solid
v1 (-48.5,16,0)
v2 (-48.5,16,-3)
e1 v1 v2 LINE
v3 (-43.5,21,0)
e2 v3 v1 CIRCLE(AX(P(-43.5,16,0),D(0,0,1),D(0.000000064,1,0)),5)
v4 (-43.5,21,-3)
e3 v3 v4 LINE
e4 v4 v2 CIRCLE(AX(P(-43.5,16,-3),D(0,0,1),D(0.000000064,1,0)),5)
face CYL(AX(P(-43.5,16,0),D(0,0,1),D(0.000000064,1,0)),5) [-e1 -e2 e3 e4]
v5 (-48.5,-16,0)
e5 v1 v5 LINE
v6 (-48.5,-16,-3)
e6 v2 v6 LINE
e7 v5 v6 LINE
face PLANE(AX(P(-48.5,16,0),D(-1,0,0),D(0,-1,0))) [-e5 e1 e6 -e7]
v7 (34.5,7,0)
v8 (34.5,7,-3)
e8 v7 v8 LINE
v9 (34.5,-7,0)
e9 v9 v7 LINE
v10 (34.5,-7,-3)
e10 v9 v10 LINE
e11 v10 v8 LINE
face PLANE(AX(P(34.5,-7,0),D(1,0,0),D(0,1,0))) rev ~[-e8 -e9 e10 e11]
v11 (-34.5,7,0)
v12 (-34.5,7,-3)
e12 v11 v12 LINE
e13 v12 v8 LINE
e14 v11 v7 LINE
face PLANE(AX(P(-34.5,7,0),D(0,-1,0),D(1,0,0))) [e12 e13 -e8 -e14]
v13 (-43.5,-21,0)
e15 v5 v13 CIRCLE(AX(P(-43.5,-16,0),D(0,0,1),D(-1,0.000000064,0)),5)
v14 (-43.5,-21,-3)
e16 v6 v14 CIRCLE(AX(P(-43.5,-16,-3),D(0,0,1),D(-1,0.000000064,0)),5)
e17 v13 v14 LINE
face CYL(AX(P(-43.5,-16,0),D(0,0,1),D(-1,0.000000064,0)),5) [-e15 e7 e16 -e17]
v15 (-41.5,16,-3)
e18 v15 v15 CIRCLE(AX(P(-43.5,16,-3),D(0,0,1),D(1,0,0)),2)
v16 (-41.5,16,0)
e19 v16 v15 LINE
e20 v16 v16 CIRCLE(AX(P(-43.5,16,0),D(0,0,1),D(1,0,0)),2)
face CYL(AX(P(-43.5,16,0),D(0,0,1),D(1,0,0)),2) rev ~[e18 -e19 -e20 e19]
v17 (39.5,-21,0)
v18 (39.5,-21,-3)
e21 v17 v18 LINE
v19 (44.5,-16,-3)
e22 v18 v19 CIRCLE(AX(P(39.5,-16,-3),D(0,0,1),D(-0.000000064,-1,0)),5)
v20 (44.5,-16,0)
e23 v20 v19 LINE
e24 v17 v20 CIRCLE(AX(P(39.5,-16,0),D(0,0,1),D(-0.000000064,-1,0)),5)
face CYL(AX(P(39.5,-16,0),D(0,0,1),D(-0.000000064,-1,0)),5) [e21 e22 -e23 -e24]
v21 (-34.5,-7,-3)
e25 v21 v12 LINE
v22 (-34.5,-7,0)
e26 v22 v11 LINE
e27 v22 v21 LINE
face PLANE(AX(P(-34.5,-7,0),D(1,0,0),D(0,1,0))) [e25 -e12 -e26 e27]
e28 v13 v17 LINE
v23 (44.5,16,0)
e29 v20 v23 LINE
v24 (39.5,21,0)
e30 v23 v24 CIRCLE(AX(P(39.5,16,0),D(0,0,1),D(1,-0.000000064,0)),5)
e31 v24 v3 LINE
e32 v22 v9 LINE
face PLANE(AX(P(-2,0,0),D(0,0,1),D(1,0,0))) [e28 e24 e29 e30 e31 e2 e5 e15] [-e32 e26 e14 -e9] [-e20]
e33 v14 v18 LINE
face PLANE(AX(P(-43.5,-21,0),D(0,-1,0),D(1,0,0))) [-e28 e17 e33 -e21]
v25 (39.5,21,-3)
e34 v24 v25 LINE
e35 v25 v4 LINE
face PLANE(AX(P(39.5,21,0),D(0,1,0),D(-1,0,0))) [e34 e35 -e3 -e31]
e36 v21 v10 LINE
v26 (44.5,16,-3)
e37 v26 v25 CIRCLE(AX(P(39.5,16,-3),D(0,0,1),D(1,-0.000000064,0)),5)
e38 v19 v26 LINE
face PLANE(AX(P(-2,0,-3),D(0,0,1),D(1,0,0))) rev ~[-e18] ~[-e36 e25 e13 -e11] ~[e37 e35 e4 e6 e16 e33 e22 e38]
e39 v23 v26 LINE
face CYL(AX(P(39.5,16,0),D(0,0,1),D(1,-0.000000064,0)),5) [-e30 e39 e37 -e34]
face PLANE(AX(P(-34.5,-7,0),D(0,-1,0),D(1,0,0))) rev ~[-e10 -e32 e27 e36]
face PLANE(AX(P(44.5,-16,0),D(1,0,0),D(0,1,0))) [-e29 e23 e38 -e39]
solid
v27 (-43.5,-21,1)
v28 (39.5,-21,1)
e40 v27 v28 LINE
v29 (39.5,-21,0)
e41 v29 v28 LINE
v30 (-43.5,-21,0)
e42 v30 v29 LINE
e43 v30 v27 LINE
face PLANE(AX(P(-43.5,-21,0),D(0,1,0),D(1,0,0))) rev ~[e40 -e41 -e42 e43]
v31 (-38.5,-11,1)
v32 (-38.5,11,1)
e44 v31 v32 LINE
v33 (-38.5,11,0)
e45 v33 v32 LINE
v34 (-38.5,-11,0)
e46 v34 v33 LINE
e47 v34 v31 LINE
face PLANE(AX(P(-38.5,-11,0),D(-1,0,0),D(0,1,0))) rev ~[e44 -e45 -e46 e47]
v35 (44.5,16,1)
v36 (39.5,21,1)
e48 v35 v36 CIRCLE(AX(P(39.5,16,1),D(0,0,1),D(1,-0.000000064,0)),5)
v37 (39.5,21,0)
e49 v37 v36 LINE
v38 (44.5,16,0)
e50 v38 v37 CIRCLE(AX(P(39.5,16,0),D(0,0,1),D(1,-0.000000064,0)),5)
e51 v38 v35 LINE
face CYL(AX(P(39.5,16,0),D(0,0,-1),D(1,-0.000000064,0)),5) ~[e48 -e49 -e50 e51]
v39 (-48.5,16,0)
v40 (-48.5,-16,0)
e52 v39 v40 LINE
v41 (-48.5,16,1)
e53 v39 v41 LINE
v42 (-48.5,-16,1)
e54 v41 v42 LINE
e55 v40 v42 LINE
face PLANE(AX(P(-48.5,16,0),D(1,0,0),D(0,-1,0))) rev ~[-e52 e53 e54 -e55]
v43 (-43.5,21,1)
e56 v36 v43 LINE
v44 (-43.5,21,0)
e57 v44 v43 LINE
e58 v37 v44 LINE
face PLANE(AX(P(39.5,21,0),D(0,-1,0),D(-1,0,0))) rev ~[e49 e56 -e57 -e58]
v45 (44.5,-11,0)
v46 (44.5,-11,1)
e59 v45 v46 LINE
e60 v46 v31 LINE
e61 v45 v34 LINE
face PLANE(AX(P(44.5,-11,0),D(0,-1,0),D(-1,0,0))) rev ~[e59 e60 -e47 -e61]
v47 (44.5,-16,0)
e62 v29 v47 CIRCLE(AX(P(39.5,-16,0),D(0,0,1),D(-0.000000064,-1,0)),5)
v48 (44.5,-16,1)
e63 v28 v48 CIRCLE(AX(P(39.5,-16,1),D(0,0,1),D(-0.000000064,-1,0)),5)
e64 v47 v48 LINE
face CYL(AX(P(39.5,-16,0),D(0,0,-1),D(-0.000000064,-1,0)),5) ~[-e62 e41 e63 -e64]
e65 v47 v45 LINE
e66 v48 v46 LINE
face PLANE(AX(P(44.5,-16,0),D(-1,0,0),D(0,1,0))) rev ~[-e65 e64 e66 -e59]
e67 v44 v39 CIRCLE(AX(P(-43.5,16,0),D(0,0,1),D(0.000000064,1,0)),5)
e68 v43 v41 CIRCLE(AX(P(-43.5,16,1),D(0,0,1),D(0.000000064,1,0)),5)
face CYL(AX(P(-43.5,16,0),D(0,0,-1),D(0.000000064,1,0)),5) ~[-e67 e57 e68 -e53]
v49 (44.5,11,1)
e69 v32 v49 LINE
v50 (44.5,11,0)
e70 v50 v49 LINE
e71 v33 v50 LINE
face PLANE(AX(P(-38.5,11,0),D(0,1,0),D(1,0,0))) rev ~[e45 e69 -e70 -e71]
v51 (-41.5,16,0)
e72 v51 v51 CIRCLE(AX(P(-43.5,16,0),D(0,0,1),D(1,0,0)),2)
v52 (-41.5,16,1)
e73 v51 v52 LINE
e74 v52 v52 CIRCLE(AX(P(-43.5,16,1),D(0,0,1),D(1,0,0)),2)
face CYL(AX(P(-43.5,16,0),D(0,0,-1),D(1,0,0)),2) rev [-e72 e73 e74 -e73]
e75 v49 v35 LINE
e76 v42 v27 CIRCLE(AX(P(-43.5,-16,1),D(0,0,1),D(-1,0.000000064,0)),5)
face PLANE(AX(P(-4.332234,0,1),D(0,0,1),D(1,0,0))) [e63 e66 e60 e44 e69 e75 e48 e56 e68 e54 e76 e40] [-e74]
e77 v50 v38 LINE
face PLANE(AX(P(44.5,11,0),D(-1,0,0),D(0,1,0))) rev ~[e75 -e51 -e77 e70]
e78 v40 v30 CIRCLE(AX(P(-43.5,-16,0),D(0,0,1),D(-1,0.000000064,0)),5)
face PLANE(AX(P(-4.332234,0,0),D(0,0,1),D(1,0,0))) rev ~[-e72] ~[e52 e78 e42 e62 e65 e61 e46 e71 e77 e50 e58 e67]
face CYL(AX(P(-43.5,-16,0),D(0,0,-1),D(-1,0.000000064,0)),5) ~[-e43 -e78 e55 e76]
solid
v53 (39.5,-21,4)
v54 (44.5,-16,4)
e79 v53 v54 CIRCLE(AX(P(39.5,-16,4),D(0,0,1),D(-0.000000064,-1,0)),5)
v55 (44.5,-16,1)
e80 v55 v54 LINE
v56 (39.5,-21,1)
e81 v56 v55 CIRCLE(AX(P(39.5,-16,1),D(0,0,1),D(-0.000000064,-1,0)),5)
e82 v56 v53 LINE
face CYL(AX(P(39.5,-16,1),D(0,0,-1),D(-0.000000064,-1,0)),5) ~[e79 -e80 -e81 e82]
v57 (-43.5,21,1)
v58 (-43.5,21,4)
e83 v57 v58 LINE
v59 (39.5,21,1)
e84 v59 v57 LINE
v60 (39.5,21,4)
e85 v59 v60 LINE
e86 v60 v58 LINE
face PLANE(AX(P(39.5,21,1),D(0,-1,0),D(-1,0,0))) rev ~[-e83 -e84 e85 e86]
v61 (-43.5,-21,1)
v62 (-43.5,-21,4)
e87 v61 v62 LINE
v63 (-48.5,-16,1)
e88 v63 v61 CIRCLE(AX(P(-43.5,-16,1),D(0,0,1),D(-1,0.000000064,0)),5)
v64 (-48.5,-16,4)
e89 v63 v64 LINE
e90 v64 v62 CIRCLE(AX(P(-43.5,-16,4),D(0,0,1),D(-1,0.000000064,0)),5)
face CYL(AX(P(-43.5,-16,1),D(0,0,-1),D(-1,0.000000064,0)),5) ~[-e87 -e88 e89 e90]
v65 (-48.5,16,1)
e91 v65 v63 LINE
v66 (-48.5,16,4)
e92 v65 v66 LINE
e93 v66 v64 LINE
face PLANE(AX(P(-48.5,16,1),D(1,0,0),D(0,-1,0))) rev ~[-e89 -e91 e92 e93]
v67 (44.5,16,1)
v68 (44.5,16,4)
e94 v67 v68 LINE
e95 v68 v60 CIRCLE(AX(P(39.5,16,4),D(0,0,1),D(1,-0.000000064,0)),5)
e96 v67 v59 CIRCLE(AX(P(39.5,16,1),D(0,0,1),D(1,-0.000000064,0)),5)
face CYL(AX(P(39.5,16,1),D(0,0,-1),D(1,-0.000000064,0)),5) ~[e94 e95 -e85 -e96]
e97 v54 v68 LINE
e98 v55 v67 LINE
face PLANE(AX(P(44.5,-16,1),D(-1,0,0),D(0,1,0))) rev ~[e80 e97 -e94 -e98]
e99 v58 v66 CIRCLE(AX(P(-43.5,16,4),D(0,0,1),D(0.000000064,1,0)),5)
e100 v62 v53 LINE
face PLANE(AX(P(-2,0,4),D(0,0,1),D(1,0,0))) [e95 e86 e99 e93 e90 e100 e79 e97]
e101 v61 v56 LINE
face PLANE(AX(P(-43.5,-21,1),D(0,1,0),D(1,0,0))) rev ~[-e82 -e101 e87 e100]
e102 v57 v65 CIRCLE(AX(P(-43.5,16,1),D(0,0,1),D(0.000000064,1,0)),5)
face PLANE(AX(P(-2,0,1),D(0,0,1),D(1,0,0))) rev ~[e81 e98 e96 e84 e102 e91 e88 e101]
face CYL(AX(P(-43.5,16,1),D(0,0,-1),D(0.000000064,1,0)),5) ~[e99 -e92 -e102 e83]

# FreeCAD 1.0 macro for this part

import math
import FreeCAD as App
import Part
import Sketcher
from FreeCAD import Vector


def add_polygon(sketch, points):
    """Adds a closed chain of lines whose ends are joined by coincident constraints."""
    first, n = sketch.GeometryCount, len(points)
    for a, b in zip(points, points[1:] + points[:1]):
        sketch.addGeometry(Part.LineSegment(App.Vector(*a, 0), App.Vector(*b, 0)), False)
    for i in range(n):
        sketch.addConstraint(Sketcher.Constraint("Coincident", first + i, 2, first + (i + 1) % n, 1))

doc = App.newDocument("Part")
body = doc.addObject("PartDesign::Body", "Body")

# Sketch on XY plane
sketch1 = doc.addObject("Sketcher::SketchObject", "Sketch")
body.addObject(sketch1)
sketch1.AttachmentSupport = (doc.XY_Plane, [""])
sketch1.MapMode = "FlatFace"
sketch1.addGeometry(Part.LineSegment(Vector(39.5, 21, 0), Vector(-43.5, 21, 0)), False)  # 0
sketch1.addGeometry(Part.ArcOfCircle(Part.Circle(Vector(-43.5, 16, 0), Vector(0, 0, 1), 5), math.radians(90), math.radians(180)), False)  # 1
sketch1.addGeometry(Part.LineSegment(Vector(-48.5, 16, 0), Vector(-48.5, -16, 0)), False)  # 2
sketch1.addGeometry(Part.ArcOfCircle(Part.Circle(Vector(-43.5, -16, 0), Vector(0, 0, 1), 5), math.radians(180), math.radians(270)), False)  # 3
sketch1.addGeometry(Part.LineSegment(Vector(-43.5, -21, 0), Vector(39.5, -21, 0)), False)  # 4
sketch1.addGeometry(Part.ArcOfCircle(Part.Circle(Vector(39.5, -16, 0), Vector(0, 0, 1), 5), math.radians(-90), math.radians(0)), False)  # 5
sketch1.addGeometry(Part.LineSegment(Vector(44.5, -16, 0), Vector(44.5, 16, 0)), False)  # 6
sketch1.addGeometry(Part.ArcOfCircle(Part.Circle(Vector(39.5, 16, 0), Vector(0, 0, 1), 5), math.radians(0), math.radians(90)), False)  # 7
add_polygon(sketch1, [(34.5, -7), (-34.5, -7), (-34.5, 7), (34.5, 7)])  # lines 8-11
sketch1.addGeometry(Part.Circle(Vector(-43.5, 16, 0), Vector(0, 0, 1), 2), False)  # 12
sketch1.addConstraint([
    Sketcher.Constraint("Tangent", 0, 2, 1, 1),
    Sketcher.Constraint("Tangent", 1, 2, 2, 1),
    Sketcher.Constraint("Tangent", 2, 2, 3, 1),
    Sketcher.Constraint("Tangent", 3, 2, 4, 1),
    Sketcher.Constraint("Tangent", 4, 2, 5, 1),
    Sketcher.Constraint("Tangent", 5, 2, 6, 1),
    Sketcher.Constraint("Tangent", 6, 2, 7, 1),
    Sketcher.Constraint("Tangent", 7, 2, 0, 1),
    Sketcher.Constraint("Horizontal", 0),
    Sketcher.Constraint("Vertical", 2),
    Sketcher.Constraint("Horizontal", 4),
    Sketcher.Constraint("Vertical", 6),
    Sketcher.Constraint("Horizontal", 8),
    Sketcher.Constraint("Vertical", 9),
    Sketcher.Constraint("Horizontal", 10),
    Sketcher.Constraint("Vertical", 11),
    Sketcher.Constraint("Coincident", 12, 3, 1, 3),
    Sketcher.Constraint("Equal", 1, 3),
    Sketcher.Constraint("Equal", 3, 5),
    Sketcher.Constraint("Equal", 5, 7),
    Sketcher.Constraint("Symmetric", 8, 2, 10, 2, -1, 1),
    Sketcher.Constraint("Diameter", 12, 4.0),
    Sketcher.Constraint("Radius", 1, 5.0),
    Sketcher.Constraint("DistanceX", 0, 2, 0, 1, 83.0),
    Sketcher.Constraint("DistanceX", 8, 2, 8, 1, 69.0),
    Sketcher.Constraint("DistanceY", 2, 2, 2, 1, 32.0),
    Sketcher.Constraint("DistanceY", 9, 1, 9, 2, 14.0),
    Sketcher.Constraint("DistanceY", -1, 1, 1, 3, 16.0),
    Sketcher.Constraint("DistanceX", 3, 3, 8, 2, 9.0),
])
pad1 = doc.addObject("PartDesign::Pad", "Pad")
body.addObject(pad1)
pad1.Profile = sketch1
pad1.Length = 3
pad1.Reversed = True
body2 = doc.addObject("PartDesign::Body", "Body001")

# Sketch on XY plane
sketch2 = doc.addObject("Sketcher::SketchObject", "Sketch001")
body2.addObject(sketch2)
sketch2.AttachmentSupport = (doc.getObject("XY_Plane001"), [""])
sketch2.MapMode = "FlatFace"
sketch2.addGeometry([
    Part.LineSegment(Vector(-38.5, 11, 0), Vector(44.5, 11, 0)),  # 0
    Part.LineSegment(Vector(44.5, 11, 0), Vector(44.5, 16, 0)),  # 1
    Part.ArcOfCircle(Part.Circle(Vector(39.5, 16, 0), Vector(0, 0, 1), 5), math.radians(0), math.radians(90)),  # 2
    Part.LineSegment(Vector(39.5, 21, 0), Vector(-43.5, 21, 0)),  # 3
    Part.ArcOfCircle(Part.Circle(Vector(-43.5, 16, 0), Vector(0, 0, 1), 5), math.radians(90), math.radians(180)),  # 4
    Part.LineSegment(Vector(-48.5, 16, 0), Vector(-48.5, -16, 0)),  # 5
    Part.ArcOfCircle(Part.Circle(Vector(-43.5, -16, 0), Vector(0, 0, 1), 5), math.radians(180), math.radians(270)),  # 6
    Part.LineSegment(Vector(-43.5, -21, 0), Vector(39.5, -21, 0)),  # 7
    Part.ArcOfCircle(Part.Circle(Vector(39.5, -16, 0), Vector(0, 0, 1), 5), math.radians(-90), math.radians(0)),  # 8
    Part.LineSegment(Vector(44.5, -16, 0), Vector(44.5, -11, 0)),  # 9
    Part.LineSegment(Vector(44.5, -11, 0), Vector(-38.5, -11, 0)),  # 10
    Part.LineSegment(Vector(-38.5, -11, 0), Vector(-38.5, 11, 0)),  # 11
    Part.Circle(Vector(-43.5, 16, 0), Vector(0, 0, 1), 2),  # 12
], False)
sketch2.addConstraint([
    Sketcher.Constraint("Coincident", 0, 2, 1, 1),
    Sketcher.Constraint("Tangent", 1, 2, 2, 1),
    Sketcher.Constraint("Tangent", 2, 2, 3, 1),
    Sketcher.Constraint("Tangent", 3, 2, 4, 1),
    Sketcher.Constraint("Tangent", 4, 2, 5, 1),
    Sketcher.Constraint("Tangent", 5, 2, 6, 1),
    Sketcher.Constraint("Tangent", 6, 2, 7, 1),
    Sketcher.Constraint("Tangent", 7, 2, 8, 1),
    Sketcher.Constraint("Tangent", 8, 2, 9, 1),
    Sketcher.Constraint("Coincident", 9, 2, 10, 1),
    Sketcher.Constraint("Coincident", 10, 2, 11, 1),
    Sketcher.Constraint("Coincident", 11, 2, 0, 1),
    Sketcher.Constraint("Horizontal", 0),
    Sketcher.Constraint("Vertical", 1),
    Sketcher.Constraint("Horizontal", 3),
    Sketcher.Constraint("Vertical", 5),
    Sketcher.Constraint("Horizontal", 7),
    Sketcher.Constraint("Vertical", 9),
    Sketcher.Constraint("Horizontal", 10),
    Sketcher.Constraint("Vertical", 11),
    Sketcher.Constraint("Coincident", 12, 3, 4, 3),
    Sketcher.Constraint("Equal", 2, 4),
    Sketcher.Constraint("Equal", 4, 6),
    Sketcher.Constraint("Equal", 6, 8),
    Sketcher.Constraint("Symmetric", 2, 3, 8, 3, -1),
    Sketcher.Constraint("Equal", 0, 3),
    Sketcher.Constraint("Equal", 1, 9),
    Sketcher.Constraint("Diameter", 12, 4.0),
    Sketcher.Constraint("Radius", 2, 5.0),
    Sketcher.Constraint("DistanceX", 0, 1, 0, 2, 83.0),
    Sketcher.Constraint("DistanceY", 1, 1, 1, 2, 5.0),
    Sketcher.Constraint("DistanceY", 5, 2, 5, 1, 32.0),
    Sketcher.Constraint("DistanceX", -1, 1, 2, 3, 39.5),
])
pad2 = doc.addObject("PartDesign::Pad", "Pad001")
body2.addObject(pad2)
pad2.Profile = sketch2
pad2.Length = 1
body3 = doc.addObject("PartDesign::Body", "Body002")

# Sketch on XY plane
sketch3 = doc.addObject("Sketcher::SketchObject", "Sketch002")
body3.addObject(sketch3)
sketch3.AttachmentSupport = (doc.getObject("XY_Plane002"), [""])
sketch3.MapMode = "FlatFace"
sketch3.AttachmentOffset = App.Placement(Vector(0, 0, 1), App.Rotation())
sketch3.addGeometry([
    Part.LineSegment(Vector(44.5, -16, 0), Vector(44.5, 16, 0)),  # 0
    Part.ArcOfCircle(Part.Circle(Vector(39.5, 16, 0), Vector(0, 0, 1), 5), math.radians(0), math.radians(90)),  # 1
    Part.LineSegment(Vector(39.5, 21, 0), Vector(-43.5, 21, 0)),  # 2
    Part.ArcOfCircle(Part.Circle(Vector(-43.5, 16, 0), Vector(0, 0, 1), 5), math.radians(90), math.radians(180)),  # 3
    Part.LineSegment(Vector(-48.5, 16, 0), Vector(-48.5, -16, 0)),  # 4
    Part.ArcOfCircle(Part.Circle(Vector(-43.5, -16, 0), Vector(0, 0, 1), 5), math.radians(180), math.radians(270)),  # 5
    Part.LineSegment(Vector(-43.5, -21, 0), Vector(39.5, -21, 0)),  # 6
    Part.ArcOfCircle(Part.Circle(Vector(39.5, -16, 0), Vector(0, 0, 1), 5), math.radians(-90), math.radians(0)),  # 7
], False)
sketch3.addConstraint([
    Sketcher.Constraint("Tangent", 0, 2, 1, 1),
    Sketcher.Constraint("Tangent", 1, 2, 2, 1),
    Sketcher.Constraint("Tangent", 2, 2, 3, 1),
    Sketcher.Constraint("Tangent", 3, 2, 4, 1),
    Sketcher.Constraint("Tangent", 4, 2, 5, 1),
    Sketcher.Constraint("Tangent", 5, 2, 6, 1),
    Sketcher.Constraint("Tangent", 6, 2, 7, 1),
    Sketcher.Constraint("Tangent", 7, 2, 0, 1),
    Sketcher.Constraint("Vertical", 0),
    Sketcher.Constraint("Horizontal", 2),
    Sketcher.Constraint("Vertical", 4),
    Sketcher.Constraint("Horizontal", 6),
    Sketcher.Constraint("Equal", 1, 3),
    Sketcher.Constraint("Equal", 3, 5),
    Sketcher.Constraint("Equal", 5, 7),
    Sketcher.Constraint("Radius", 1, 5.0),
    Sketcher.Constraint("DistanceX", 2, 2, 2, 1, 83.0),
    Sketcher.Constraint("DistanceY", 0, 1, 0, 2, 32.0),
    Sketcher.Constraint("DistanceY", -1, 1, 1, 3, 16.0),
    Sketcher.Constraint("DistanceX", -1, 1, 1, 3, 39.5),
])
pad3 = doc.addObject("PartDesign::Pad", "Pad002")
body3.addObject(pad3)
pad3.Profile = sketch3
pad3.Length = 3

doc.recompute()
